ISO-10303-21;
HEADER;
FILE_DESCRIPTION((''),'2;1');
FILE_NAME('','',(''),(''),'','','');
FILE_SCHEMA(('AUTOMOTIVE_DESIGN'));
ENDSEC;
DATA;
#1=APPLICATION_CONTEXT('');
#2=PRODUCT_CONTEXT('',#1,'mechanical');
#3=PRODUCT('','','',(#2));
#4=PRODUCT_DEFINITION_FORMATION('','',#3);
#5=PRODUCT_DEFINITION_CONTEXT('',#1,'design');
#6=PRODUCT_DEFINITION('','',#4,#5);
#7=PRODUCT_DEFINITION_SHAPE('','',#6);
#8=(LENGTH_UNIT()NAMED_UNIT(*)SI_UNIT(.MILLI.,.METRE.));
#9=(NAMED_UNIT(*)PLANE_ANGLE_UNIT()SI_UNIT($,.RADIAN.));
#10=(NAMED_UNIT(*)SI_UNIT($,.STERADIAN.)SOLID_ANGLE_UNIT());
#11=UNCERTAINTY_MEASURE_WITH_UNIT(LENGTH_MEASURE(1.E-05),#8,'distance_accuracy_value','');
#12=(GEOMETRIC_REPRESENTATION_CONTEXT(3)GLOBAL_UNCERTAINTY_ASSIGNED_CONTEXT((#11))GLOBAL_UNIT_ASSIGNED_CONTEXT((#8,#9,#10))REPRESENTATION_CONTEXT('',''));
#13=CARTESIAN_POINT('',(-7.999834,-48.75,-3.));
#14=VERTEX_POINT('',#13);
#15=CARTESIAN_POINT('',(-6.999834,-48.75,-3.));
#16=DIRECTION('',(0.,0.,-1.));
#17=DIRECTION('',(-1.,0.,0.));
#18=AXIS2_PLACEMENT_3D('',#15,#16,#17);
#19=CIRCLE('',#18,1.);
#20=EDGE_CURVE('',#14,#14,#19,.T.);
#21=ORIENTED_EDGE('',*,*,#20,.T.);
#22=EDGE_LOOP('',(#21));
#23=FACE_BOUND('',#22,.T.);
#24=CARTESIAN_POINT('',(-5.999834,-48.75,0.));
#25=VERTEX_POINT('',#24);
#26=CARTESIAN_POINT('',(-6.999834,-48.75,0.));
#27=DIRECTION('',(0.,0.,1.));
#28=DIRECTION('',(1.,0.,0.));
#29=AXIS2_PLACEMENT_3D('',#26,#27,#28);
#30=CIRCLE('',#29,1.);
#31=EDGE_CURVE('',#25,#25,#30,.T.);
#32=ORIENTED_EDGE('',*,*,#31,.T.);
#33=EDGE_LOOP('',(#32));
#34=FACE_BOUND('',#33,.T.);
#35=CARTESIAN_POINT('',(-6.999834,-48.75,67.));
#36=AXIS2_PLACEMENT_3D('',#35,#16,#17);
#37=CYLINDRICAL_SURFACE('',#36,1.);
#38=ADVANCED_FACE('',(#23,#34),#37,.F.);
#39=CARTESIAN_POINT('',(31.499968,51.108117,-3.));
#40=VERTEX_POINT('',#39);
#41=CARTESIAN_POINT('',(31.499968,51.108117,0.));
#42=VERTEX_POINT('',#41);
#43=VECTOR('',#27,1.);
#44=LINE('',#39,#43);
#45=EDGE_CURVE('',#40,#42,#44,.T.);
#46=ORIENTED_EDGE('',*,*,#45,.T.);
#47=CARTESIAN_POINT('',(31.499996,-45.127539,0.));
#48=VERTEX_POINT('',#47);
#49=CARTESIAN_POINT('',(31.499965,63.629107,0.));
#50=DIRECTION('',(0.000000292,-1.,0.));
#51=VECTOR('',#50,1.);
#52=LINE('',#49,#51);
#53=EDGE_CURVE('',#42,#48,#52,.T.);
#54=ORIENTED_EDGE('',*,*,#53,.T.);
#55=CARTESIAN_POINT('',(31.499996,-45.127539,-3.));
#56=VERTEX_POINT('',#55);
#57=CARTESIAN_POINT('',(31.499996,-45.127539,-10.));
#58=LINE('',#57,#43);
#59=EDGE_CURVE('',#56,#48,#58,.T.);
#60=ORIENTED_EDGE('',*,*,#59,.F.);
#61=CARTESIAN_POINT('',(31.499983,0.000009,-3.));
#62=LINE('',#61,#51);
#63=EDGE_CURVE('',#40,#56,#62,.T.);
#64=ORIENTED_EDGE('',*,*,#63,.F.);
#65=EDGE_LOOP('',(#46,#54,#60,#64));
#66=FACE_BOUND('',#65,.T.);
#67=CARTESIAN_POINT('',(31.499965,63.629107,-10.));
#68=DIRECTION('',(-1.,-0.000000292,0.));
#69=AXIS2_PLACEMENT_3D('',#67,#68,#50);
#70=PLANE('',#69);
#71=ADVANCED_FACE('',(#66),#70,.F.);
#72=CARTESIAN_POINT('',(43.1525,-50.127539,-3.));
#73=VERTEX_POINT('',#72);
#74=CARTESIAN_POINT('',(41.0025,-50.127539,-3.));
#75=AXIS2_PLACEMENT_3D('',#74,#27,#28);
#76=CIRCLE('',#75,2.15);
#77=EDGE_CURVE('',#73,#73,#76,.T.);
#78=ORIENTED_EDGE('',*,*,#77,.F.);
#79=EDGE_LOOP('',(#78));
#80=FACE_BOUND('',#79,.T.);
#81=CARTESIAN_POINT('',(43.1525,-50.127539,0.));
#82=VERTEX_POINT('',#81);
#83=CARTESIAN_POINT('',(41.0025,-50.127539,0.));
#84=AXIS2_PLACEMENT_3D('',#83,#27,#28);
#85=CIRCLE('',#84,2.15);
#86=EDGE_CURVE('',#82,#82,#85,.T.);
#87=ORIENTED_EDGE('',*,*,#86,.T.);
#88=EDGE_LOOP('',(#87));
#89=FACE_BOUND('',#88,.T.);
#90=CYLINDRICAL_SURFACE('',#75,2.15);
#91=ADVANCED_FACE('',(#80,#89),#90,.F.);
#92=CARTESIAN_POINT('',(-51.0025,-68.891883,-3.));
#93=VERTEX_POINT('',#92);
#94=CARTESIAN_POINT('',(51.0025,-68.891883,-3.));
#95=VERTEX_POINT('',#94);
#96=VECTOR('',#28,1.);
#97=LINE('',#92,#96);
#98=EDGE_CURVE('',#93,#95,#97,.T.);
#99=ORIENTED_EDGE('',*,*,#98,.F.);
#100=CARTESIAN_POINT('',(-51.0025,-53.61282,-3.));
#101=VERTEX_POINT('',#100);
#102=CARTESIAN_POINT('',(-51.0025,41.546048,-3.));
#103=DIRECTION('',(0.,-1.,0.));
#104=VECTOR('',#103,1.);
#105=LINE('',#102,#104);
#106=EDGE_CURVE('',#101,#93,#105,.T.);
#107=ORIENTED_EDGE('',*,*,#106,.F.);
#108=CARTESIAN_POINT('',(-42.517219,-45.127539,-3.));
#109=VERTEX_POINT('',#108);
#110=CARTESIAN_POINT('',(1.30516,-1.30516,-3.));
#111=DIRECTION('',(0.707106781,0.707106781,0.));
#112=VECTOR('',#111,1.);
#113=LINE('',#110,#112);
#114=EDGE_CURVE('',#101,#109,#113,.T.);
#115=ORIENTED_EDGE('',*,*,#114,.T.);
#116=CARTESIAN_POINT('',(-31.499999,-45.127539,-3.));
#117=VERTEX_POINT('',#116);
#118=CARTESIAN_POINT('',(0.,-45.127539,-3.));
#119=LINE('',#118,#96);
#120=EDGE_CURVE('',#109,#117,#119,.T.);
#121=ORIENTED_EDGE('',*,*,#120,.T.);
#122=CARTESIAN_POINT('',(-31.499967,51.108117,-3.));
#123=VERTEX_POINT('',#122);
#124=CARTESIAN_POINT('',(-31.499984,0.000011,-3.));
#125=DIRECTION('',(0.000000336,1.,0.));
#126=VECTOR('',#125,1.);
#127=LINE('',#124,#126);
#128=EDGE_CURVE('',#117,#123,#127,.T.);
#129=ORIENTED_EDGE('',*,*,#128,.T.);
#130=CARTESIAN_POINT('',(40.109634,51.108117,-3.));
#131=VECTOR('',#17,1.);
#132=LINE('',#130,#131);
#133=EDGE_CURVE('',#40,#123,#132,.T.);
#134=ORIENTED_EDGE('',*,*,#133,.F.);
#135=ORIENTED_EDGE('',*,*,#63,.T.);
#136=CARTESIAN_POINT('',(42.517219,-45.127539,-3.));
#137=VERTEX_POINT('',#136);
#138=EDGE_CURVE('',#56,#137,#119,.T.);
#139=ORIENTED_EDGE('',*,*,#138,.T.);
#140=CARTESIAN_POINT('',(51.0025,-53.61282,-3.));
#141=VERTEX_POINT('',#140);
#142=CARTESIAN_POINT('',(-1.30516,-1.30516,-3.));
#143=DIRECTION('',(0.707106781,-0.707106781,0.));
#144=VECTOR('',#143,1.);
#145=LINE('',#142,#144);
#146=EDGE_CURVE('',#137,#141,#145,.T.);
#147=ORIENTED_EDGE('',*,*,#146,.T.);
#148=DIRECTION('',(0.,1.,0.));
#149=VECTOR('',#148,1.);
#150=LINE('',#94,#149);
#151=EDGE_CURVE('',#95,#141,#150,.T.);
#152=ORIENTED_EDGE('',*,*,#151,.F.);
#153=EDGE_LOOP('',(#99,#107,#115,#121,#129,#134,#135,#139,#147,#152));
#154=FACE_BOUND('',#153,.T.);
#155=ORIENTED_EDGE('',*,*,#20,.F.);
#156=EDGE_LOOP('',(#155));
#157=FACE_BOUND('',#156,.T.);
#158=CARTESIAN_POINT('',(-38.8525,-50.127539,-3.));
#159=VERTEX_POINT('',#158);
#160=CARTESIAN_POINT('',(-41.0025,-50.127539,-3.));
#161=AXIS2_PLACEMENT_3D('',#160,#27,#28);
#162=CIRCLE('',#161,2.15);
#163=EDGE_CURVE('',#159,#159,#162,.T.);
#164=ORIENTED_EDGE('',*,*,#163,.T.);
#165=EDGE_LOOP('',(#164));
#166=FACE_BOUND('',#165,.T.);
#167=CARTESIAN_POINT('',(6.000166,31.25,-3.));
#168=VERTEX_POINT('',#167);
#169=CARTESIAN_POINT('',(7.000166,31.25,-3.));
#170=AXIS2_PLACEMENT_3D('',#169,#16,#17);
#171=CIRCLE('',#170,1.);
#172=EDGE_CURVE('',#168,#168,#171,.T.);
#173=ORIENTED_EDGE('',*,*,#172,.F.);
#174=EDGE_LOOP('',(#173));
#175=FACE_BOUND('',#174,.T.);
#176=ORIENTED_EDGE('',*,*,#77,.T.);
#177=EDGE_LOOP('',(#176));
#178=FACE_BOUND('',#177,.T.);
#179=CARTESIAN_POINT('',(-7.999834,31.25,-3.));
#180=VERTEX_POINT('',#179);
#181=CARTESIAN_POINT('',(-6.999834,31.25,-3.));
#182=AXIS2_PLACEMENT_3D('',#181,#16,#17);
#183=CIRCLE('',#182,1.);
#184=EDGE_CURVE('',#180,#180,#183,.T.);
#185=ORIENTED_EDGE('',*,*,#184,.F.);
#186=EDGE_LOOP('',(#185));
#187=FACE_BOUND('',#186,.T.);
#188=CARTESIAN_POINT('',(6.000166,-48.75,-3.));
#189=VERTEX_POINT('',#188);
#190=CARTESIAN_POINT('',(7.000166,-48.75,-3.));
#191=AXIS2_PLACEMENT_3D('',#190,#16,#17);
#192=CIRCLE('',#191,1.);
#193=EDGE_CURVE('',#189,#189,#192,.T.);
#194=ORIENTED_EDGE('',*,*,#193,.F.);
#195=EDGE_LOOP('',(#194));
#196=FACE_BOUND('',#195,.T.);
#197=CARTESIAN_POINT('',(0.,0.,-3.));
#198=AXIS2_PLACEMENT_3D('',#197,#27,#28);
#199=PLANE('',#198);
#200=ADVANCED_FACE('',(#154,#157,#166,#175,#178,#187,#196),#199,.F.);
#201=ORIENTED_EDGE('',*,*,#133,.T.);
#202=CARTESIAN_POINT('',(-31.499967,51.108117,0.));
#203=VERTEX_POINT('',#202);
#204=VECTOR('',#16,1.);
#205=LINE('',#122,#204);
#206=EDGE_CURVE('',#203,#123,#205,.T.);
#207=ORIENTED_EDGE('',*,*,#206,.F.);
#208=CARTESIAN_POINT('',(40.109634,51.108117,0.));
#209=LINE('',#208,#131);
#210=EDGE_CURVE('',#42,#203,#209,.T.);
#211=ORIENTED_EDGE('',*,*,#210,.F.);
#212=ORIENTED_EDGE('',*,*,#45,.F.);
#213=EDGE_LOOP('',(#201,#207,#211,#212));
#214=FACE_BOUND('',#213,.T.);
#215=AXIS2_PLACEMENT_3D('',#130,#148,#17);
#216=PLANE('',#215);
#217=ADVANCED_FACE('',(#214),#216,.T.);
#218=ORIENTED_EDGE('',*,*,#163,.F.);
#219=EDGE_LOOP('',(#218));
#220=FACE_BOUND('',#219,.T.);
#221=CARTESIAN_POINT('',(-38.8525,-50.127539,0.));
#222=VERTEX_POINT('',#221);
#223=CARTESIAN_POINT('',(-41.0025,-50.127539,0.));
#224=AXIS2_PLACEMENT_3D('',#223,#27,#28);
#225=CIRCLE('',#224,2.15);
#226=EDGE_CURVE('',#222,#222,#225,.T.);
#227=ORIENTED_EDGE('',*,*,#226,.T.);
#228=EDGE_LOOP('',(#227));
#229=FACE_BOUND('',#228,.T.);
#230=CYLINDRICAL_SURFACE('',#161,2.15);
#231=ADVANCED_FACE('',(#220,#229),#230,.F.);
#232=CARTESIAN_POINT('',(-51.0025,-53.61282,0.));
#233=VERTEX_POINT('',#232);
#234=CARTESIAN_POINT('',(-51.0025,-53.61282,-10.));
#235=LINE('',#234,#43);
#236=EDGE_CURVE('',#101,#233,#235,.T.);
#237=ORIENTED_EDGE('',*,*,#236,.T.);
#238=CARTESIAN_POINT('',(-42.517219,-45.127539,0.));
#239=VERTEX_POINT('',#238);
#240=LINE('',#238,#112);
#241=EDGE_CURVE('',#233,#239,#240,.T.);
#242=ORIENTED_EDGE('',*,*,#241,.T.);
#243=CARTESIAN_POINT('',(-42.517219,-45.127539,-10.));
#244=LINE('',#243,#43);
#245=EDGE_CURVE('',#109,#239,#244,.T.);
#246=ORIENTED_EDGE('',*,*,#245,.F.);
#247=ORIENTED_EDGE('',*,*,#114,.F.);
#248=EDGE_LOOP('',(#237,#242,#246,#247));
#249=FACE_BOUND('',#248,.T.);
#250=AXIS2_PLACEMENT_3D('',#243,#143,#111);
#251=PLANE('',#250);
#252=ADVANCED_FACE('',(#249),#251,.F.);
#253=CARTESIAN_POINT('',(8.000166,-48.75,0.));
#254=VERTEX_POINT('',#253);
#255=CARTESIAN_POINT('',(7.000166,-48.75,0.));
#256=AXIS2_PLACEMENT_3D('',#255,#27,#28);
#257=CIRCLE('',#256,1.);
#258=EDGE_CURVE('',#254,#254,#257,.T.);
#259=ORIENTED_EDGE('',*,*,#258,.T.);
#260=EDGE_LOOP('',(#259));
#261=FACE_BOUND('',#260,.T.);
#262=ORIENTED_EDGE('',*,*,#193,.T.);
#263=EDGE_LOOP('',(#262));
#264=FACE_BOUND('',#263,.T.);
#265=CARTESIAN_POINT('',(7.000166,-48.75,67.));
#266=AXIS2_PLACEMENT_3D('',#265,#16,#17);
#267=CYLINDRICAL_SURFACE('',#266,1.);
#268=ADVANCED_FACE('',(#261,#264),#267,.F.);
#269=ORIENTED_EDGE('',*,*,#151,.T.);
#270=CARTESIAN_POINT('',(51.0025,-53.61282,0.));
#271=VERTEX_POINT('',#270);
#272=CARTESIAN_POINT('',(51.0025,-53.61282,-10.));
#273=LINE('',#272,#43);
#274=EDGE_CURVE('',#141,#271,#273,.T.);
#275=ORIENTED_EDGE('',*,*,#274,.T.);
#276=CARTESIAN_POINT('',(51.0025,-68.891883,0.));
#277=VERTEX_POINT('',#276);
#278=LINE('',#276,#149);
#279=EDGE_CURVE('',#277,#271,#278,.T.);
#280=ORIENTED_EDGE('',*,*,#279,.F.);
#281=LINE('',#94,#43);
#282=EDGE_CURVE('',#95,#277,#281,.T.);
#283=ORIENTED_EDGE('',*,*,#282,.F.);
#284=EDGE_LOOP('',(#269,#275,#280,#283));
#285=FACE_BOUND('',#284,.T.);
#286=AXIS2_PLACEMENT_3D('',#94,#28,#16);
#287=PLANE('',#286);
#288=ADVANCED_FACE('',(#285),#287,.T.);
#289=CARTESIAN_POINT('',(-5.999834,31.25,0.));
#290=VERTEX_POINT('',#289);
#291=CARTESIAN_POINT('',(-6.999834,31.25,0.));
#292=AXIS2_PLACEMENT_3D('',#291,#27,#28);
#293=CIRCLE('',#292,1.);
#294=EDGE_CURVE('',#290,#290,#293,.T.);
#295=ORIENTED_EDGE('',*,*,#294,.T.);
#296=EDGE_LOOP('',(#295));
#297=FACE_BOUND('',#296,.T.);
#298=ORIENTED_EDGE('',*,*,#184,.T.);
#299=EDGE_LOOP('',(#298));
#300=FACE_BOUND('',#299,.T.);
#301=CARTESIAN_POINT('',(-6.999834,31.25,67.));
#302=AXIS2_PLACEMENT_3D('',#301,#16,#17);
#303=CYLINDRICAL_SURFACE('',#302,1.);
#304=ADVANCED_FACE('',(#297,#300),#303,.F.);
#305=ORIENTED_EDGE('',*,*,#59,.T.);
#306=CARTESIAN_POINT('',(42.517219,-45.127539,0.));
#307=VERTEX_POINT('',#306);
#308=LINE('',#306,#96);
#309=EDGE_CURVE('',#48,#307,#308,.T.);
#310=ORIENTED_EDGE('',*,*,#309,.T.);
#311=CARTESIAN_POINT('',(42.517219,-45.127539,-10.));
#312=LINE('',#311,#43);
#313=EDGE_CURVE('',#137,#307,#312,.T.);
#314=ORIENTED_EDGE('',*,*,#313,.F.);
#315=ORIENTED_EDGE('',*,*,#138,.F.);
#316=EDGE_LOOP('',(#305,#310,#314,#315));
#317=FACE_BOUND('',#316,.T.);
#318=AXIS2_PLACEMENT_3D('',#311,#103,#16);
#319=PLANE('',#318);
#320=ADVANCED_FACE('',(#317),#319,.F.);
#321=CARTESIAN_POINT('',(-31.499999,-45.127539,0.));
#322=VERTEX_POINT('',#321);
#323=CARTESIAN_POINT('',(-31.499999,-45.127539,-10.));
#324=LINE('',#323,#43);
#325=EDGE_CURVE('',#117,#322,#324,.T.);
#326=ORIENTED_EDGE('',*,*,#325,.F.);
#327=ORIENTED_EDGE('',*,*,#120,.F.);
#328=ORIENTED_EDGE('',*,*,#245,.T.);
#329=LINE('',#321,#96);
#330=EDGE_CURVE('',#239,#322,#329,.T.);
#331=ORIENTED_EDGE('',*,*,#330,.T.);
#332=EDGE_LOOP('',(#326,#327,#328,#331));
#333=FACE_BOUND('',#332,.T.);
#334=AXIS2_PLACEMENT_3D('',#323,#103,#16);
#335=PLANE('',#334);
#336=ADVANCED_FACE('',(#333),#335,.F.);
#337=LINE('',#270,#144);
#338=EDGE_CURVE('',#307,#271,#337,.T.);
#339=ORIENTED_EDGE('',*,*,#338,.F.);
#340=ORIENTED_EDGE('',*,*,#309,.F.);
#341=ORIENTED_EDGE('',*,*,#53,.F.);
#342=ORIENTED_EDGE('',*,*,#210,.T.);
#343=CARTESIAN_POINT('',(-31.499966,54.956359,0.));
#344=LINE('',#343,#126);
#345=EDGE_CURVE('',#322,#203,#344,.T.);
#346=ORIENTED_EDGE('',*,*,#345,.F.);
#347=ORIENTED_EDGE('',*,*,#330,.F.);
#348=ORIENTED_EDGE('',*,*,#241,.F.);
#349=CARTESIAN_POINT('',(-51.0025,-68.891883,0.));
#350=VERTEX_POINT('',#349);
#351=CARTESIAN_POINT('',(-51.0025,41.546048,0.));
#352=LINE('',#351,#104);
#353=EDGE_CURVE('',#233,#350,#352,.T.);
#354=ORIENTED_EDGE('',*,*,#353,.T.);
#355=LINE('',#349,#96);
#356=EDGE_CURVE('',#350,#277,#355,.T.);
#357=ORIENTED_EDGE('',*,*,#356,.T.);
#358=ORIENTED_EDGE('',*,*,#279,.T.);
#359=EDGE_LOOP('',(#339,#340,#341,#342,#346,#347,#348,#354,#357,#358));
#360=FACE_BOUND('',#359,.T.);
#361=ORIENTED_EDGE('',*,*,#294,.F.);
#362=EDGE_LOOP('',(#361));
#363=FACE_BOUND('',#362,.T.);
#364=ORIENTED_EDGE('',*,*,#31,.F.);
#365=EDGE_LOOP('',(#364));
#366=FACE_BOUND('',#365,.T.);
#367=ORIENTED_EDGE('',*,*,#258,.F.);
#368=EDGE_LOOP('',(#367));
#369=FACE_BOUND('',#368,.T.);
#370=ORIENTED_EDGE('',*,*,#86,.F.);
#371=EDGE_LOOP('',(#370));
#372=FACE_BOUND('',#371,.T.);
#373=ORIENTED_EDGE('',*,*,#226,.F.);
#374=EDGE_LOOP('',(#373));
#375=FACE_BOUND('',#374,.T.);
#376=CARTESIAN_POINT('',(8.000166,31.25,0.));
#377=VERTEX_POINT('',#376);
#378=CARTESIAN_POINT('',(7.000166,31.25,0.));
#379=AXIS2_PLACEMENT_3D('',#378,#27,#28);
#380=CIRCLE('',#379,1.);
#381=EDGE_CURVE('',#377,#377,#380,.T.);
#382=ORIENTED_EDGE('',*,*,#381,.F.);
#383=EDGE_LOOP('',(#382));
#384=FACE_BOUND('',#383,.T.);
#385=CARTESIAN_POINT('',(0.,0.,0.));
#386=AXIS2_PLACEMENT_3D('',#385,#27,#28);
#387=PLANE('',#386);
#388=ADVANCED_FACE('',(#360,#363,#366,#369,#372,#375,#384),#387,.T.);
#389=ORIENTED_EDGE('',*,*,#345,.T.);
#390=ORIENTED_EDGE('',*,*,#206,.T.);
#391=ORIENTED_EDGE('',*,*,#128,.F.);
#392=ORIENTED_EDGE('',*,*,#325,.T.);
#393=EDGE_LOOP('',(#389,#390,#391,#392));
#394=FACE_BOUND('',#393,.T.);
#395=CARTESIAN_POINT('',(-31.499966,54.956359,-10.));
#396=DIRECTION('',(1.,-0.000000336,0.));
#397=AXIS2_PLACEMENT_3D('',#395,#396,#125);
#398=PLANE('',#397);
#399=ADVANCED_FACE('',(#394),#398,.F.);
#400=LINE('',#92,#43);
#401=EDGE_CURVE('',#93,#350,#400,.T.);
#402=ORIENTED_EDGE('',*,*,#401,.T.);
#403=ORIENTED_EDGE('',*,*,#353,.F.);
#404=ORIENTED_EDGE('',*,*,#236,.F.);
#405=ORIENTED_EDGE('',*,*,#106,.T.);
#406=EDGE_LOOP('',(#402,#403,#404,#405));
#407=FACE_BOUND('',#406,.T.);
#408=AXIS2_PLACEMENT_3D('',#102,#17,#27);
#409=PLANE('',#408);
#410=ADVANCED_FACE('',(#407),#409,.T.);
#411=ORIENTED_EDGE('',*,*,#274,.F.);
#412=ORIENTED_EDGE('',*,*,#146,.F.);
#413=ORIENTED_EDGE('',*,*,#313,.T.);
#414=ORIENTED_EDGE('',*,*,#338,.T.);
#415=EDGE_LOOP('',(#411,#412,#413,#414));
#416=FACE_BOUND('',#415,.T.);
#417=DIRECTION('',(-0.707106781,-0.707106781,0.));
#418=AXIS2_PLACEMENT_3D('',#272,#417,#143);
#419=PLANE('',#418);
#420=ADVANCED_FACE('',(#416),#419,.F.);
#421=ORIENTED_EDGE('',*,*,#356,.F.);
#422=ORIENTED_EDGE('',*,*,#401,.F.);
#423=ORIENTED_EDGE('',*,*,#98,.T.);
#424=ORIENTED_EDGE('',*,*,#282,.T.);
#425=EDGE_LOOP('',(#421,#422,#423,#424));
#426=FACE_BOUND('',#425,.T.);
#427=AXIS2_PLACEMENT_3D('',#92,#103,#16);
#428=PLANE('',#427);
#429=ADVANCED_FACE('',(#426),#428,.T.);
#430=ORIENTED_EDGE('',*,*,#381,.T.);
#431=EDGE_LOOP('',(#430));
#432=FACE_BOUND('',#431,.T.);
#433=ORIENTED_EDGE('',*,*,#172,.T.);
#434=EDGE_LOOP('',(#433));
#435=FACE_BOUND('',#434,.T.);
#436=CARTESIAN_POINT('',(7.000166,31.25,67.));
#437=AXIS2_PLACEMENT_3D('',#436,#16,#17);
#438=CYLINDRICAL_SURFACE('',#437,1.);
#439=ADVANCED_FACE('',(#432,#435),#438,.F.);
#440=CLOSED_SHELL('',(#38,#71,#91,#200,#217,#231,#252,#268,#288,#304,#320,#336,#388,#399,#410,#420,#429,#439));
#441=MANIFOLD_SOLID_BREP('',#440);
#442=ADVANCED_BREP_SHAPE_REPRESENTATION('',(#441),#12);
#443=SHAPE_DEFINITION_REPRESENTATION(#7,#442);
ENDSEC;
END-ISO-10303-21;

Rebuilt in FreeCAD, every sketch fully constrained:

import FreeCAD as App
import Part
import Sketcher

V = App.Vector


def add_polygon(sketch, points):
    """Adds a closed chain of lines whose ends are joined by coincident constraints."""
    first, n = sketch.GeometryCount, len(points)
    for a, b in zip(points, points[1:] + points[:1]):
        sketch.addGeometry(Part.LineSegment(App.Vector(*a, 0), App.Vector(*b, 0)), False)
    for i in range(n):
        sketch.addConstraint(Sketcher.Constraint("Coincident", first + i, 2, first + (i + 1) % n, 1))

doc = App.newDocument("Part")
params = doc.addObject("Spreadsheet::Sheet", "Params")
for row, (alias, value) in enumerate([
    ("pad1_length", "3 mm"),
    ("sketch2_diameter", "4.3 mm"),
    ("pocket1_length", "3 mm"),
    ("sketch3_diameter", "2 mm"),
    ("pocket2_length", "70 mm"),
    ("sketch4_length", "12 mm"),
    ("pocket3_length", "10 mm"),
], start=1):
    params.set(f"A{row}", alias)
    params.set(f"B{row}", "=" + value)
    params.setAlias(f"B{row}", alias)

body = doc.addObject("PartDesign::Body", "Body")

sketch1 = body.newObject("Sketcher::SketchObject", "Sketch")
sketch1.AttachmentSupport = (doc.getObject("XY_Plane"), [""])
sketch1.MapMode = "FlatFace"
add_polygon(sketch1, [(-51, -69), (51, -69), (51, 35), (40, 51), (-37, 51), (-51, 42)])
sketch1.addConstraint([
    Sketcher.Constraint("Horizontal", 0),
    Sketcher.Constraint("Vertical", 1),
    Sketcher.Constraint("Horizontal", 3),
    Sketcher.Constraint("Vertical", 5),
    Sketcher.Constraint("Perpendicular", 2, 4),
    Sketcher.Constraint("DistanceY", 0, 2, 2, 2, 120.0),
    Sketcher.Constraint("DistanceX", 0, 1, 0, 2, 102.005),
    Sketcher.Constraint("DistanceY", 1, 1, 1, 2, 104.158572),
    Sketcher.Constraint("DistanceY", 5, 2, 5, 1, 110.43793),
    Sketcher.Constraint("DistanceX", -1, 1, 0, 2, 51.0025),
    Sketcher.Constraint("DistanceX", 3, 2, 3, 1, 77.206075),
    Sketcher.Constraint("DistanceY", -1, 1, 1, 2, 35.266689),
])
pad1 = body.newObject("PartDesign::Pad", "Pad")
pad1.Profile = sketch1
pad1.setExpression("Length", "Params.pad1_length")
pad1.Reversed = True

sketch2 = body.newObject("Sketcher::SketchObject", "Sketch001")
sketch2.AttachmentSupport = (doc.getObject("XY_Plane"), [""])
sketch2.MapMode = "FlatFace"
sketch2.addGeometry([
    Part.Circle(V(-41, 9.9, 0), V(0, 0, 1), 2.1),
    Part.Circle(V(-41, -50.1, 0), V(0, 0, 1), 2.1),
    Part.Circle(V(41, 9.9, 0), V(0, 0, 1), 2.1),
    Part.Circle(V(41, -50.1, 0), V(0, 0, 1), 2.1),
], False)
sketch2.addConstraint([
    Sketcher.Constraint("Equal", 0, 1),
    Sketcher.Constraint("Equal", 1, 2),
    Sketcher.Constraint("Equal", 2, 3),
    Sketcher.Constraint("Symmetric", 0, 3, 2, 3, -2),
    Sketcher.Constraint("Symmetric", 1, 3, 3, 3, -2),
    Sketcher.Constraint("Vertical", 0, 3, 1, 3),
    Sketcher.Constraint("Diameter", 0, 4.3),
    Sketcher.Constraint("DistanceY", 1, 3, 0, 3, 60.0),
    Sketcher.Constraint("DistanceX", 0, 3, 2, 3, 82.005),
    Sketcher.Constraint("DistanceY", -1, 1, 0, 3, 9.872461),
])
sketch2.setExpression("Constraints[6]", "Params.sketch2_diameter")
pocket1 = body.newObject("PartDesign::Pocket", "Pocket")
pocket1.Profile = sketch2
pocket1.setExpression("Length", "Params.pocket1_length")

sketch3 = body.newObject("Sketcher::SketchObject", "Sketch002")
sketch3.AttachmentSupport = (doc.getObject("XY_Plane"), [""])
sketch3.MapMode = "FlatFace"
sketch3.AttachmentOffset = App.Placement(V(0, 0, -3), App.Rotation())
sketch3.addGeometry([
    Part.Circle(V(7, 31.2, 0), V(0, 0, 1), 1),
    Part.Circle(V(-7, 31.2, 0), V(0, 0, 1), 1),
    Part.Circle(V(7, -48.8, 0), V(0, 0, 1), 1),
    Part.Circle(V(-7, -48.8, 0), V(0, 0, 1), 1),
], False)
sketch3.addConstraint([
    Sketcher.Constraint("Equal", 0, 1),
    Sketcher.Constraint("Equal", 1, 2),
    Sketcher.Constraint("Equal", 2, 3),
    Sketcher.Constraint("Horizontal", 0, 3, 1, 3),
    Sketcher.Constraint("Horizontal", 2, 3, 3, 3),
    Sketcher.Constraint("Vertical", 0, 3, 2, 3),
    Sketcher.Constraint("Vertical", 1, 3, 3, 3),
    Sketcher.Constraint("Diameter", 0, 2.0),
    Sketcher.Constraint("DistanceX", 1, 3, 0, 3, 14.0),
    Sketcher.Constraint("DistanceY", 2, 3, 0, 3, 80.0),
    Sketcher.Constraint("DistanceY", -1, 1, 0, 3, 31.25),
    Sketcher.Constraint("DistanceX", -1, 1, 0, 3, 7.000166),
])
sketch3.setExpression("Constraints[7]", "Params.sketch3_diameter")
pocket2 = body.newObject("PartDesign::Pocket", "Pocket001")
pocket2.Profile = sketch3
pocket2.setExpression("Length", "Params.pocket2_length")
pocket2.Reversed = True

sketch4 = body.newObject("Sketcher::SketchObject", "Sketch003")
sketch4.AttachmentSupport = (doc.getObject("XY_Plane"), [""])
sketch4.MapMode = "FlatFace"
add_polygon(sketch4, [(42.517219, -45.127539), (51.0025, -53.61282), (51.0025, 63.629107), (31.499965, 63.629107), (31.499996, -45.127539)])
add_polygon(sketch4, [(-42.517219, -45.127539), (-31.499999, -45.127539), (-31.499966, 54.956359), (-51.0025, 54.956359), (-51.0025, -53.61282)])
sketch4.addConstraint([
    Sketcher.Constraint("Vertical", 1),
    Sketcher.Constraint("Horizontal", 2),
    Sketcher.Constraint("Horizontal", 4),
    Sketcher.Constraint("Horizontal", 5),
    Sketcher.Constraint("Horizontal", 7),
    Sketcher.Constraint("Vertical", 8),
    Sketcher.Constraint("Symmetric", 3, 2, 5, 2, -2),
    Sketcher.Constraint("Symmetric", 0, 2, 8, 2, -2),
    Sketcher.Constraint("Parallel", 3, 6),
    Sketcher.Constraint("Perpendicular", 0, 9),
    Sketcher.Constraint("Equal", 2, 7),
    Sketcher.Constraint("Equal", 0, 9),
    Sketcher.Constraint("Distance", 0, 12.0),
    Sketcher.Constraint("DistanceX", 5, 2, -1, 1, 31.499999),
    Sketcher.Constraint("DistanceX", 7, 2, 1, 2, 102.005),
    Sketcher.Constraint("DistanceY", 8, 2, 8, 1, 108.569179),
    Sketcher.Constraint("DistanceY", 1, 1, 1, 2, 117.241927),
    Sketcher.Constraint("DistanceY", 0, 2, -1, 1, 53.61282),
])
sketch4.setExpression("Constraints[22]", "Params.sketch4_length")
pocket3 = body.newObject("PartDesign::Pocket", "Pocket002")
pocket3.Profile = sketch4
pocket3.setExpression("Length", "Params.pocket3_length")

doc.recompute()
